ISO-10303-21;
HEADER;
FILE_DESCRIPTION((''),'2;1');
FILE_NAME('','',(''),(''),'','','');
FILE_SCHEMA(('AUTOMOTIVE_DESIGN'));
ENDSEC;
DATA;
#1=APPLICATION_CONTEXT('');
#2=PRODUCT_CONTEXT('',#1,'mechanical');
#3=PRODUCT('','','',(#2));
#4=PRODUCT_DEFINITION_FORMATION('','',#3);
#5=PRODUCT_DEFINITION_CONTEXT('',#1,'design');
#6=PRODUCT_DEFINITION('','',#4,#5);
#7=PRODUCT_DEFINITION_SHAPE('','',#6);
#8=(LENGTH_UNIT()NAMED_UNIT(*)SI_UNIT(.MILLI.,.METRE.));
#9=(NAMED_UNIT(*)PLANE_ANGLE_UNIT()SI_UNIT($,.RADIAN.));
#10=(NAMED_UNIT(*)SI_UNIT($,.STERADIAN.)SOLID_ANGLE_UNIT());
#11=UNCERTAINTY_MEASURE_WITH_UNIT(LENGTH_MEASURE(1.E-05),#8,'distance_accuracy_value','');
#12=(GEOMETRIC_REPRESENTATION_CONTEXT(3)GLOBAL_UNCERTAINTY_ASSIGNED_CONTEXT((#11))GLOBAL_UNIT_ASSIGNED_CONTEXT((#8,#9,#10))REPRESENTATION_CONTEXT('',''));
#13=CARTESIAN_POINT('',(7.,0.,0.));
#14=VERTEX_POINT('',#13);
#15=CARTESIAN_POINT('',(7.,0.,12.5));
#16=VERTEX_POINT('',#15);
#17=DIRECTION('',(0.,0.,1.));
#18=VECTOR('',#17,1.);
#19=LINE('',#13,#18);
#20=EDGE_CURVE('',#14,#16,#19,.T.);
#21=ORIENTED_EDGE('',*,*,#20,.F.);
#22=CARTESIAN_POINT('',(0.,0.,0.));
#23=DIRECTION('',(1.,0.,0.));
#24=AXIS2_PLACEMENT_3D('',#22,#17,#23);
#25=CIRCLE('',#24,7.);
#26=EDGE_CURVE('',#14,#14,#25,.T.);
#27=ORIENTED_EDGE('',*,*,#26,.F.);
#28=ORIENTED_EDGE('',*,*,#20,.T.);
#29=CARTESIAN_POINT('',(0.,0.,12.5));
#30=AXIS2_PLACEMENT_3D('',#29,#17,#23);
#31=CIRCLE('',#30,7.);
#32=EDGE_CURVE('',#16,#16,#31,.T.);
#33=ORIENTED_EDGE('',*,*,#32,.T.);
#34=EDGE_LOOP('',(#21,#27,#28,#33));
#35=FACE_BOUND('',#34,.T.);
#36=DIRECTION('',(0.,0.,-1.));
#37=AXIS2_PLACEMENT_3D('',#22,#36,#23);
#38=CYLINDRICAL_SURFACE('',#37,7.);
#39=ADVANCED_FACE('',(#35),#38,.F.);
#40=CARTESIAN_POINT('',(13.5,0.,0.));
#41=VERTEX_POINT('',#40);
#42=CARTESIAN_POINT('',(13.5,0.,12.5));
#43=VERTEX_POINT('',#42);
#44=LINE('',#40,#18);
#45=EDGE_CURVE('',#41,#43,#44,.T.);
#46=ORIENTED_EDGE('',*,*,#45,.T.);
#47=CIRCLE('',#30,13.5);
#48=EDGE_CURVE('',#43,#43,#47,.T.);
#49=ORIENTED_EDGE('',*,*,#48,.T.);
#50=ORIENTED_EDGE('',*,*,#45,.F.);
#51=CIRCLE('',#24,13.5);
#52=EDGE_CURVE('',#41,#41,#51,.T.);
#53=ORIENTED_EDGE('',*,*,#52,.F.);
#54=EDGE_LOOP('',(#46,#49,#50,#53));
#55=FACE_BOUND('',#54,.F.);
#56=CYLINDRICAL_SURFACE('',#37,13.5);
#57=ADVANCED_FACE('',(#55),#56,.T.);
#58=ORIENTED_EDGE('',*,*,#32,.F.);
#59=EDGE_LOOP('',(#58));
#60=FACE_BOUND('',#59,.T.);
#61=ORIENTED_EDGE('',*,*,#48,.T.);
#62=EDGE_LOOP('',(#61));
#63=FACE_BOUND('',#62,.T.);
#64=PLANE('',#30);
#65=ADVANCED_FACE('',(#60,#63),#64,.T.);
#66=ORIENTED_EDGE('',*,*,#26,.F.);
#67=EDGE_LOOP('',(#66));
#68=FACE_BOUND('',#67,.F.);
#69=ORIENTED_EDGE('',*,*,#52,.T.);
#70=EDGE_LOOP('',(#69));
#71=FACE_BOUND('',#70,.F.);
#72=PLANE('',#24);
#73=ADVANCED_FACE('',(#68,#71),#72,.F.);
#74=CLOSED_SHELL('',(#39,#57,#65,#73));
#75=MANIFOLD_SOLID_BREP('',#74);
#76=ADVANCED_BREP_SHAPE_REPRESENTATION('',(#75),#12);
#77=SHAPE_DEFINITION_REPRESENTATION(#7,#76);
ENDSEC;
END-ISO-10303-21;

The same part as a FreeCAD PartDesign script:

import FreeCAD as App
import Part
import Sketcher

doc = App.newDocument("Part")
body = doc.addObject("PartDesign::Body", "Body")

# Sketch on XY plane
sketch1 = body.newObject("Sketcher::SketchObject", "Sketch")
sketch1.AttachmentSupport = (doc.getObject("XY_Plane"), [""])
sketch1.MapMode = "FlatFace"
sketch1.addGeometry([
    Part.Circle(App.Vector(0, 0, 0), App.Vector(0, 0, 1), 14),
    Part.Circle(App.Vector(0, 0, 0), App.Vector(0, 0, 1), 7),
], False)
sketch1.addConstraint([
    Sketcher.Constraint("Coincident", 0, 3, -1, 1),
    Sketcher.Constraint("Coincident", 1, 3, -1, 1),
    Sketcher.Constraint("Diameter", 0, 27.0),
    Sketcher.Constraint("Diameter", 1, 14.0),
])
pad1 = body.newObject("PartDesign::Pad", "Pad")
pad1.Profile = sketch1
pad1.Length = 12.5

doc.recompute()
